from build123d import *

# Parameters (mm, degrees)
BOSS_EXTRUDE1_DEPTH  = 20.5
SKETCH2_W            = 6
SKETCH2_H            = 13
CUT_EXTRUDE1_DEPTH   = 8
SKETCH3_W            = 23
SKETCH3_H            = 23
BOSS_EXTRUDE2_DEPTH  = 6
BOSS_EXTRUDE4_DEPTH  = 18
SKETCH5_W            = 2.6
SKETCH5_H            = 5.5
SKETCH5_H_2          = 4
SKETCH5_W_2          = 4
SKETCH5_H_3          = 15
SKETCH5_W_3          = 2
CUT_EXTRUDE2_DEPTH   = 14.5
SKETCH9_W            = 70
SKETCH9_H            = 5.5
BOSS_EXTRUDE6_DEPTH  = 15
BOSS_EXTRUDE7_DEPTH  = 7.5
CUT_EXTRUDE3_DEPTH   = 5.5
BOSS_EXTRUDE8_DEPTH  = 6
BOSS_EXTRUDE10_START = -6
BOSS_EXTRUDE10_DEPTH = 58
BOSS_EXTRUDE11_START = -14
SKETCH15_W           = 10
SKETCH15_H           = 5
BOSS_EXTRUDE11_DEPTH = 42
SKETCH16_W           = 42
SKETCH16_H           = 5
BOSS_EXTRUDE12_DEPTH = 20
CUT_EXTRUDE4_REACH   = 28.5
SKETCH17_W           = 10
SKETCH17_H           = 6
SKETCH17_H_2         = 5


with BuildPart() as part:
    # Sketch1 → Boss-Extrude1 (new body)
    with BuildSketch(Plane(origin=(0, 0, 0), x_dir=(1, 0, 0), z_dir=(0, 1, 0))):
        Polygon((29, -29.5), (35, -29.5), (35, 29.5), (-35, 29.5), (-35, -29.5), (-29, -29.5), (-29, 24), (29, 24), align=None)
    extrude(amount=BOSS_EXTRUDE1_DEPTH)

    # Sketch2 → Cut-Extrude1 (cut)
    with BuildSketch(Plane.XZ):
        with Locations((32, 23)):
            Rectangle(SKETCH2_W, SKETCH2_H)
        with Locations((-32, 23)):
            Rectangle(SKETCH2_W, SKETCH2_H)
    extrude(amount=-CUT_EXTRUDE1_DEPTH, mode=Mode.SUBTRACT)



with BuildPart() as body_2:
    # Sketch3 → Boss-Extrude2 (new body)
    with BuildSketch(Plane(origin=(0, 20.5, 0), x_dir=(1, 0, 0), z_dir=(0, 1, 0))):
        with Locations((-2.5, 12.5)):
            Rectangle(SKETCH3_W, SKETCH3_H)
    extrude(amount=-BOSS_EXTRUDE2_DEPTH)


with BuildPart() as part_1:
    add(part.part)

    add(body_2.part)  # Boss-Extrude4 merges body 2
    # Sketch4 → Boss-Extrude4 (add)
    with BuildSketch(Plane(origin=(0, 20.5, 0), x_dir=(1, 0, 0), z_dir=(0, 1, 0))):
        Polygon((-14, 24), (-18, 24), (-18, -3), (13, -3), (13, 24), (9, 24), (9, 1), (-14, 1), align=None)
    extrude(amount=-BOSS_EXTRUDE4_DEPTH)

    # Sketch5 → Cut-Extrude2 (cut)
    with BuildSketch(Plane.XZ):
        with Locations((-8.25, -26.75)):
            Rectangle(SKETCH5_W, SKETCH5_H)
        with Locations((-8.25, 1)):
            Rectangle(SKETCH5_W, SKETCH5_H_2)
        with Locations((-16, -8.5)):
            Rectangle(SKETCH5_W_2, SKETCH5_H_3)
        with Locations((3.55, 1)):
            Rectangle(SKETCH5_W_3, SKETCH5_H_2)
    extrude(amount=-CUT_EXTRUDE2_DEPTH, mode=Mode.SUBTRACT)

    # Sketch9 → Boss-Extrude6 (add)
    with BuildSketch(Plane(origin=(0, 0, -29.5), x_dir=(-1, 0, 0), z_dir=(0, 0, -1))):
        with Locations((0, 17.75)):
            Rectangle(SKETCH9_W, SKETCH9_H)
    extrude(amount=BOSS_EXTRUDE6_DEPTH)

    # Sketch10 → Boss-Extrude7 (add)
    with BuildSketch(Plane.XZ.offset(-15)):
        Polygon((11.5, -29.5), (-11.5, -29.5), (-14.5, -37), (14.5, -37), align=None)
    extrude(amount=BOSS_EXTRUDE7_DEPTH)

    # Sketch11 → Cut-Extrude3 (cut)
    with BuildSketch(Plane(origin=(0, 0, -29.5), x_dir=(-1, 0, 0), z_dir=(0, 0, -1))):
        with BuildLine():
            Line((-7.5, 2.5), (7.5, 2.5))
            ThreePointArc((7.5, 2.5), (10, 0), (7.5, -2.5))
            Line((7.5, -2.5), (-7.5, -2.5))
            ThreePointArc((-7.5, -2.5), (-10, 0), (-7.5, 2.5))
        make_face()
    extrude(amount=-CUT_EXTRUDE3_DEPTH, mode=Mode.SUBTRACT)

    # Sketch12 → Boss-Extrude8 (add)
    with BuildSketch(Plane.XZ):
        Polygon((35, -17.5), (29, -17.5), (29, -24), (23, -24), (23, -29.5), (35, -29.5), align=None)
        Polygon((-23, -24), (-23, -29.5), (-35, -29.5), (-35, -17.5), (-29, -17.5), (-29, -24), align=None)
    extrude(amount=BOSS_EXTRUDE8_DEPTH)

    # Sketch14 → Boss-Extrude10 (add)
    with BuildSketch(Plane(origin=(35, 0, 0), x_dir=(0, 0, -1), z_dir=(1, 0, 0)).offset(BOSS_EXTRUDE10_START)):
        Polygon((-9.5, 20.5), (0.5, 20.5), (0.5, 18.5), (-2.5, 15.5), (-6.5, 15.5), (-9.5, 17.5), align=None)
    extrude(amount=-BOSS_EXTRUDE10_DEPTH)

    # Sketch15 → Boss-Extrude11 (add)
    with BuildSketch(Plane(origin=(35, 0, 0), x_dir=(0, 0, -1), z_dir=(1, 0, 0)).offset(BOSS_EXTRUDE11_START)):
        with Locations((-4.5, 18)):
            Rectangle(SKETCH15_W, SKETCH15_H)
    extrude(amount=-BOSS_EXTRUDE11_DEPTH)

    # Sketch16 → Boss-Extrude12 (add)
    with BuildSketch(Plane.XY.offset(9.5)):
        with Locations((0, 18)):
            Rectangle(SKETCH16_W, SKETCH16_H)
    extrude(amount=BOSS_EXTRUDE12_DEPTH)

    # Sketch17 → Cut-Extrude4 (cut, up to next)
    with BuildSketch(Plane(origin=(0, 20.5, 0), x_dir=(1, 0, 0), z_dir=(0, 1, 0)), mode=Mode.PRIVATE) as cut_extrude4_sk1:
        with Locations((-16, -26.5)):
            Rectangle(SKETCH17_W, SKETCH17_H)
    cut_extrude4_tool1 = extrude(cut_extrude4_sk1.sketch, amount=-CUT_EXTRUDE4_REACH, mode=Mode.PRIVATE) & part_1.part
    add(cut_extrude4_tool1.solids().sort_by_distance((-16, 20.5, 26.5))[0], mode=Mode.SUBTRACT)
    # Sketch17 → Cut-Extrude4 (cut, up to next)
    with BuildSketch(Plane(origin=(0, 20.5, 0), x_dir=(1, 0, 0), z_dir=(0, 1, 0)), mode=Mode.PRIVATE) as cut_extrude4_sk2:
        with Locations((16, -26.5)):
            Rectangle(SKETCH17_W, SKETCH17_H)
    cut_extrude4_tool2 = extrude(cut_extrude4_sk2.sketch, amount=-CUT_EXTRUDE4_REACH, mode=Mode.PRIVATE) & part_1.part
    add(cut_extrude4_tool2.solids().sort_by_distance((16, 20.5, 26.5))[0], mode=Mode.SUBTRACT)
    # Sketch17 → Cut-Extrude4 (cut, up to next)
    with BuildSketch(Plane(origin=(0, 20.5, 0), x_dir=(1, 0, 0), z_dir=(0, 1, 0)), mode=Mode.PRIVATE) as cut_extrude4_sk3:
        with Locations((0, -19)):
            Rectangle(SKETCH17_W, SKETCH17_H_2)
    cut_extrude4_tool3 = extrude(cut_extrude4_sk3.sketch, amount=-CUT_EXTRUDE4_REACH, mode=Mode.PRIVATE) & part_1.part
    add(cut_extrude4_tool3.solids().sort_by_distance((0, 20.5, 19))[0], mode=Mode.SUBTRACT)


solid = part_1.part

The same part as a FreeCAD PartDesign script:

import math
import FreeCAD as App
import Part
import Sketcher
Q = App.Units.Quantity

doc = App.newDocument("Part")
body = doc.addObject("PartDesign::Body", "Body")

# Sketch on XZ plane
sketch1 = body.newObject("Sketcher::SketchObject", "Sketch")
sketch1.AttachmentSupport = (doc.getObject("XZ_Plane"), [""])
sketch1.MapMode = "FlatFace"
sketch1.addGeometry([
    Part.LineSegment(App.Vector(29, 30, 0), App.Vector(35, 30, 0)),  # 0
    Part.LineSegment(App.Vector(35, 30, 0), App.Vector(35, -30, 0)),  # 1
    Part.LineSegment(App.Vector(35, -30, 0), App.Vector(-35, -30, 0)),  # 2
    Part.LineSegment(App.Vector(-35, -30, 0), App.Vector(-35, 30, 0)),  # 3
    Part.LineSegment(App.Vector(-35, 30, 0), App.Vector(-29, 30, 0)),  # 4
    Part.LineSegment(App.Vector(-29, 30, 0), App.Vector(-29, -24, 0)),  # 5
    Part.LineSegment(App.Vector(-29, -24, 0), App.Vector(29, -24, 0)),  # 6
    Part.LineSegment(App.Vector(29, -24, 0), App.Vector(29, 30, 0)),  # 7
], False)
sketch1.addConstraint([
    Sketcher.Constraint("Coincident", 0, 2, 1, 1),
    Sketcher.Constraint("Coincident", 1, 2, 2, 1),
    Sketcher.Constraint("Coincident", 2, 2, 3, 1),
    Sketcher.Constraint("Coincident", 3, 2, 4, 1),
    Sketcher.Constraint("Coincident", 4, 2, 5, 1),
    Sketcher.Constraint("Coincident", 5, 2, 6, 1),
    Sketcher.Constraint("Coincident", 6, 2, 7, 1),
    Sketcher.Constraint("Coincident", 7, 2, 0, 1),
    Sketcher.Constraint("Horizontal", 0),
    Sketcher.Constraint("Vertical", 1),
    Sketcher.Constraint("Horizontal", 2),
    Sketcher.Constraint("Vertical", 3),
    Sketcher.Constraint("Horizontal", 4),
    Sketcher.Constraint("Vertical", 5),
    Sketcher.Constraint("Horizontal", 6),
    Sketcher.Constraint("Vertical", 7),
    Sketcher.Constraint("Symmetric", 0, 2, 2, 2, -1, 1),
    Sketcher.Constraint("Symmetric", 4, 2, 7, 2, -2),
    Sketcher.Constraint("DistanceX", 0, 1, 0, 2, 6.0),
    Sketcher.Constraint("DistanceX", 2, 2, 2, 1, 70.0),
    Sketcher.Constraint("DistanceY", 1, 2, 1, 1, 59.0),
    Sketcher.Constraint("DistanceY", 5, 2, 5, 1, 53.5),
])
pad1 = body.newObject("PartDesign::Pad", "Pad")
pad1.Profile = sketch1
pad1.Length = 20.5
pad1.Reversed = True

# Sketch on XZ plane
sketch2 = body.newObject("Sketcher::SketchObject", "Sketch001")
sketch2.AttachmentSupport = (doc.getObject("XZ_Plane"), [""])
sketch2.MapMode = "FlatFace"
sketch2.addGeometry([
    Part.LineSegment(App.Vector(29, 30, 0), App.Vector(29, 16, 0)),  # 0
    Part.LineSegment(App.Vector(29, 16, 0), App.Vector(35, 16, 0)),  # 1
    Part.LineSegment(App.Vector(35, 16, 0), App.Vector(35, 30, 0)),  # 2
    Part.LineSegment(App.Vector(35, 30, 0), App.Vector(29, 30, 0)),  # 3
    Part.LineSegment(App.Vector(-35, 30, 0), App.Vector(-35, 16, 0)),  # 4
    Part.LineSegment(App.Vector(-35, 16, 0), App.Vector(-29, 16, 0)),  # 5
    Part.LineSegment(App.Vector(-29, 16, 0), App.Vector(-29, 30, 0)),  # 6
    Part.LineSegment(App.Vector(-29, 30, 0), App.Vector(-35, 30, 0)),  # 7
], False)
sketch2.addConstraint([
    Sketcher.Constraint("Coincident", 0, 2, 1, 1),
    Sketcher.Constraint("Coincident", 1, 2, 2, 1),
    Sketcher.Constraint("Coincident", 2, 2, 3, 1),
    Sketcher.Constraint("Coincident", 3, 2, 0, 1),
    Sketcher.Constraint("Coincident", 4, 2, 5, 1),
    Sketcher.Constraint("Coincident", 5, 2, 6, 1),
    Sketcher.Constraint("Coincident", 6, 2, 7, 1),
    Sketcher.Constraint("Coincident", 7, 2, 4, 1),
    Sketcher.Constraint("Vertical", 0),
    Sketcher.Constraint("Horizontal", 1),
    Sketcher.Constraint("Vertical", 2),
    Sketcher.Constraint("Horizontal", 3),
    Sketcher.Constraint("Vertical", 4),
    Sketcher.Constraint("Horizontal", 5),
    Sketcher.Constraint("Vertical", 6),
    Sketcher.Constraint("Horizontal", 7),
    Sketcher.Constraint("Symmetric", 1, 2, 4, 2, -2),
    Sketcher.Constraint("Symmetric", 3, 2, 6, 2, -2),
    Sketcher.Constraint("DistanceX", 1, 1, 1, 2, 6.0),
    Sketcher.Constraint("DistanceY", 0, 2, 0, 1, 13.0),
    Sketcher.Constraint("DistanceX", -1, 1, 0, 2, 29.0),
    Sketcher.Constraint("DistanceY", -1, 1, 0, 2, 16.5),
])
pocket1 = body.newObject("PartDesign::Pocket", "Pocket")
pocket1.Profile = sketch2
pocket1.Length = 8
body2 = doc.addObject("PartDesign::Body", "Body001")

# Sketch on XZ plane
sketch3 = body2.newObject("Sketcher::SketchObject", "Sketch002")
sketch3.AttachmentSupport = (doc.getObject("XZ_Plane001"), [""])
sketch3.MapMode = "FlatFace"
sketch3.AttachmentOffset = App.Placement(App.Vector(0, 0, -20.5), App.Rotation())
sketch3.addGeometry([
    Part.LineSegment(App.Vector(-14, -24, 0), App.Vector(-14, -1, 0)),
    Part.LineSegment(App.Vector(-14, -1, 0), App.Vector(9, -1, 0)),
    Part.LineSegment(App.Vector(9, -1, 0), App.Vector(9, -24, 0)),
    Part.LineSegment(App.Vector(9, -24, 0), App.Vector(-14, -24, 0)),
], False)
sketch3.addConstraint([
    Sketcher.Constraint("Coincident", 0, 2, 1, 1),
    Sketcher.Constraint("Coincident", 1, 2, 2, 1),
    Sketcher.Constraint("Coincident", 2, 2, 3, 1),
    Sketcher.Constraint("Coincident", 3, 2, 0, 1),
    Sketcher.Constraint("Vertical", 0),
    Sketcher.Constraint("Horizontal", 1),
    Sketcher.Constraint("Vertical", 2),
    Sketcher.Constraint("Horizontal", 3),
    Sketcher.Constraint("Equal", 3, 0),
    Sketcher.Constraint("DistanceX", 1, 1, 1, 2, 23.0),
    Sketcher.Constraint("DistanceX", 0, 2, -1, 1, 14.0),
    Sketcher.Constraint("DistanceY", 0, 2, -1, 1, 1.0),
])
pad2 = body2.newObject("PartDesign::Pad", "Pad001")
pad2.Profile = sketch3
pad2.Length = 6
doc.recompute()

boolean = body.newObject("PartDesign::Boolean", "Boolean")
boolean.Type = "Fuse"
boolean.addObjects([body2])

# Sketch on XZ plane
sketch4 = body.newObject("Sketcher::SketchObject", "Sketch003")
sketch4.AttachmentSupport = (doc.getObject("XZ_Plane"), [""])
sketch4.MapMode = "FlatFace"
sketch4.AttachmentOffset = App.Placement(App.Vector(0, 0, -20.5), App.Rotation())
sketch4.addGeometry([
    Part.LineSegment(App.Vector(-14, -24, 0), App.Vector(-18, -24, 0)),  # 0
    Part.LineSegment(App.Vector(-18, -24, 0), App.Vector(-18, 3, 0)),  # 1
    Part.LineSegment(App.Vector(-18, 3, 0), App.Vector(13, 3, 0)),  # 2
    Part.LineSegment(App.Vector(13, 3, 0), App.Vector(13, -24, 0)),  # 3
    Part.LineSegment(App.Vector(13, -24, 0), App.Vector(9, -24, 0)),  # 4
    Part.LineSegment(App.Vector(9, -24, 0), App.Vector(9, -1, 0)),  # 5
    Part.LineSegment(App.Vector(9, -1, 0), App.Vector(-14, -1, 0)),  # 6
    Part.LineSegment(App.Vector(-14, -1, 0), App.Vector(-14, -24, 0)),  # 7
], False)
sketch4.addConstraint([
    Sketcher.Constraint("Coincident", 0, 2, 1, 1),
    Sketcher.Constraint("Coincident", 1, 2, 2, 1),
    Sketcher.Constraint("Coincident", 2, 2, 3, 1),
    Sketcher.Constraint("Coincident", 3, 2, 4, 1),
    Sketcher.Constraint("Coincident", 4, 2, 5, 1),
    Sketcher.Constraint("Coincident", 5, 2, 6, 1),
    Sketcher.Constraint("Coincident", 6, 2, 7, 1),
    Sketcher.Constraint("Coincident", 7, 2, 0, 1),
    Sketcher.Constraint("Horizontal", 0),
    Sketcher.Constraint("Vertical", 1),
    Sketcher.Constraint("Horizontal", 2),
    Sketcher.Constraint("Vertical", 3),
    Sketcher.Constraint("Horizontal", 4),
    Sketcher.Constraint("Vertical", 5),
    Sketcher.Constraint("Horizontal", 6),
    Sketcher.Constraint("Vertical", 7),
    Sketcher.Constraint("Horizontal", 0, 2, 3, 2),
    Sketcher.Constraint("Equal", 0, 4),
    Sketcher.Constraint("Equal", 6, 5),
    Sketcher.Constraint("DistanceX", 0, 2, 0, 1, 4.0),
    Sketcher.Constraint("DistanceX", 2, 1, 2, 2, 31.0),
    Sketcher.Constraint("DistanceY", 1, 1, 1, 2, 27.0),
    Sketcher.Constraint("DistanceX", 0, 2, -1, 1, 18.0),
    Sketcher.Constraint("DistanceY", 0, 2, -1, 1, 24.0),
])
pad3 = body.newObject("PartDesign::Pad", "Pad002")
pad3.Profile = sketch4
pad3.Length = 18

# Sketch on XZ plane
sketch5 = body.newObject("Sketcher::SketchObject", "Sketch004")
sketch5.AttachmentSupport = (doc.getObject("XZ_Plane"), [""])
sketch5.MapMode = "FlatFace"
sketch5.addGeometry([
    Part.LineSegment(App.Vector(-9.6, -24, 0), App.Vector(-9.6, -29.5, 0)),  # 0
    Part.LineSegment(App.Vector(-9.6, -29.5, 0), App.Vector(-7, -29.5, 0)),  # 1
    Part.LineSegment(App.Vector(-7, -29.5, 0), App.Vector(-7, -24, 0)),  # 2
    Part.LineSegment(App.Vector(-7, -24, 0), App.Vector(-9.6, -24, 0)),  # 3
    Part.LineSegment(App.Vector(-9.6, 3, 0), App.Vector(-9.6, -1, 0)),  # 4
    Part.LineSegment(App.Vector(-9.6, -1, 0), App.Vector(-7, -1, 0)),  # 5
    Part.LineSegment(App.Vector(-7, -1, 0), App.Vector(-7, 3, 0)),  # 6
    Part.LineSegment(App.Vector(-7, 3, 0), App.Vector(-9.6, 3, 0)),  # 7
    Part.LineSegment(App.Vector(-18, -1, 0), App.Vector(-18, -16, 0)),  # 8
    Part.LineSegment(App.Vector(-18, -16, 0), App.Vector(-14, -16, 0)),  # 9
    Part.LineSegment(App.Vector(-14, -16, 0), App.Vector(-14, -1, 0)),  # 10
    Part.LineSegment(App.Vector(-14, -1, 0), App.Vector(-18, -1, 0)),  # 11
    Part.LineSegment(App.Vector(2.5, 3, 0), App.Vector(2.5, -1, 0)),  # 12
    Part.LineSegment(App.Vector(2.5, -1, 0), App.Vector(4.5, -1, 0)),  # 13
    Part.LineSegment(App.Vector(4.5, -1, 0), App.Vector(4.5, 3, 0)),  # 14
    Part.LineSegment(App.Vector(4.5, 3, 0), App.Vector(2.5, 3, 0)),  # 15
], False)
sketch5.addConstraint([
    Sketcher.Constraint("Coincident", 0, 2, 1, 1),
    Sketcher.Constraint("Coincident", 1, 2, 2, 1),
    Sketcher.Constraint("Coincident", 2, 2, 3, 1),
    Sketcher.Constraint("Coincident", 3, 2, 0, 1),
    Sketcher.Constraint("Coincident", 4, 2, 5, 1),
    Sketcher.Constraint("Coincident", 5, 2, 6, 1),
    Sketcher.Constraint("Coincident", 6, 2, 7, 1),
    Sketcher.Constraint("Coincident", 7, 2, 4, 1),
    Sketcher.Constraint("Coincident", 8, 2, 9, 1),
    Sketcher.Constraint("Coincident", 9, 2, 10, 1),
    Sketcher.Constraint("Coincident", 10, 2, 11, 1),
    Sketcher.Constraint("Coincident", 11, 2, 8, 1),
    Sketcher.Constraint("Coincident", 12, 2, 13, 1),
    Sketcher.Constraint("Coincident", 13, 2, 14, 1),
    Sketcher.Constraint("Coincident", 14, 2, 15, 1),
    Sketcher.Constraint("Coincident", 15, 2, 12, 1),
    Sketcher.Constraint("Vertical", 0),
    Sketcher.Constraint("Horizontal", 1),
    Sketcher.Constraint("Vertical", 2),
    Sketcher.Constraint("Horizontal", 3),
    Sketcher.Constraint("Vertical", 4),
    Sketcher.Constraint("Horizontal", 5),
    Sketcher.Constraint("Vertical", 6),
    Sketcher.Constraint("Horizontal", 7),
    Sketcher.Constraint("Vertical", 8),
    Sketcher.Constraint("Horizontal", 9),
    Sketcher.Constraint("Vertical", 10),
    Sketcher.Constraint("Horizontal", 11),
    Sketcher.Constraint("Vertical", 12),
    Sketcher.Constraint("Horizontal", 13),
    Sketcher.Constraint("Vertical", 14),
    Sketcher.Constraint("Horizontal", 15),
    Sketcher.Constraint("Horizontal", 5, 2, 10, 2),
    Sketcher.Constraint("Horizontal", 11, 2, 12, 2),
    Sketcher.Constraint("Horizontal", 7, 2, 14, 2),
    Sketcher.Constraint("Vertical", 3, 2, 4, 2),
    Sketcher.Constraint("Vertical", 2, 2, 5, 2),
    Sketcher.Constraint("Equal", 11, 4),
    Sketcher.Constraint("DistanceX", 9, 1, 9, 2, 4.0),
    Sketcher.Constraint("DistanceX", 13, 1, 13, 2, 2.0),
    Sketcher.Constraint("DistanceY", 8, 2, 8, 1, 15.0),
    Sketcher.Constraint("DistanceX", 1, 1, 1, 2, 2.6),
    Sketcher.Constraint("DistanceY", 0, 2, 0, 1, 5.5),
    Sketcher.Constraint("DistanceY", 2, 2, -1, 1, 24.0),
    Sketcher.Constraint("DistanceY", 4, 2, -1, 1, 1.0),
    Sketcher.Constraint("DistanceX", 8, 2, -1, 1, 18.0),
    Sketcher.Constraint("DistanceX", 5, 2, 12, 2, 9.5),
    Sketcher.Constraint("DistanceX", 0, 2, -1, 1, 9.55),
])
pocket2 = body.newObject("PartDesign::Pocket", "Pocket001")
pocket2.Profile = sketch5
pocket2.Length = 14.5

# Sketch on XY plane
sketch6 = body.newObject("Sketcher::SketchObject", "Sketch005")
sketch6.AttachmentSupport = (doc.getObject("XY_Plane"), [""])
sketch6.MapMode = "FlatFace"
sketch6.AttachmentOffset = App.Placement(App.Vector(0, 0, -29.5), App.Rotation())
sketch6.addGeometry([
    Part.LineSegment(App.Vector(35, 20, 0), App.Vector(35, 15, 0)),
    Part.LineSegment(App.Vector(35, 15, 0), App.Vector(-35, 15, 0)),
    Part.LineSegment(App.Vector(-35, 15, 0), App.Vector(-35, 20, 0)),
    Part.LineSegment(App.Vector(-35, 20, 0), App.Vector(35, 20, 0)),
], False)
sketch6.addConstraint([
    Sketcher.Constraint("Coincident", 0, 2, 1, 1),
    Sketcher.Constraint("Coincident", 1, 2, 2, 1),
    Sketcher.Constraint("Coincident", 2, 2, 3, 1),
    Sketcher.Constraint("Coincident", 3, 2, 0, 1),
    Sketcher.Constraint("Vertical", 0),
    Sketcher.Constraint("Horizontal", 1),
    Sketcher.Constraint("Vertical", 2),
    Sketcher.Constraint("Horizontal", 3),
    Sketcher.Constraint("DistanceX", 1, 2, 1, 1, 70.0),
    Sketcher.Constraint("DistanceY", 0, 2, 0, 1, 5.5),
    Sketcher.Constraint("DistanceX", -1, 1, 0, 2, 35.0),
    Sketcher.Constraint("DistanceY", -1, 1, 0, 2, 15.0),
])
pad4 = body.newObject("PartDesign::Pad", "Pad003")
pad4.Profile = sketch6
pad4.Length = 15
pad4.Reversed = True

# Sketch on XZ plane
sketch7 = body.newObject("Sketcher::SketchObject", "Sketch006")
sketch7.AttachmentSupport = (doc.getObject("XZ_Plane"), [""])
sketch7.MapMode = "FlatFace"
sketch7.AttachmentOffset = App.Placement(App.Vector(0, 0, -15), App.Rotation())
sketch7.addGeometry([
    Part.LineSegment(App.Vector(12, -30, 0), App.Vector(-12, -30, 0)),
    Part.LineSegment(App.Vector(-12, -30, 0), App.Vector(-14, -37, 0)),
    Part.LineSegment(App.Vector(-14, -37, 0), App.Vector(14, -37, 0)),
    Part.LineSegment(App.Vector(14, -37, 0), App.Vector(12, -30, 0)),
], False)
sketch7.addConstraint([
    Sketcher.Constraint("Coincident", 0, 2, 1, 1),
    Sketcher.Constraint("Coincident", 1, 2, 2, 1),
    Sketcher.Constraint("Coincident", 2, 2, 3, 1),
    Sketcher.Constraint("Coincident", 3, 2, 0, 1),
    Sketcher.Constraint("Horizontal", 0),
    Sketcher.Constraint("Horizontal", 2),
    Sketcher.Constraint("Equal", 1, 3),
    Sketcher.Constraint("DistanceX", 0, 2, 0, 1, 23.0),
    Sketcher.Constraint("DistanceX", 2, 1, 2, 2, 29.0),
    Sketcher.Constraint("DistanceY", 1, 2, -1, 1, 37.0),
    Sketcher.Constraint("DistanceX", 0, 2, -1, 1, 11.5),
    Sketcher.Constraint("DistanceY", 0, 2, -1, 1, 29.5),
])
pad5 = body.newObject("PartDesign::Pad", "Pad004")
pad5.Profile = sketch7
pad5.Length = 7.5

# Sketch on XY plane
sketch8 = body.newObject("Sketcher::SketchObject", "Sketch007")
sketch8.AttachmentSupport = (doc.getObject("XY_Plane"), [""])
sketch8.MapMode = "FlatFace"
sketch8.AttachmentOffset = App.Placement(App.Vector(0, 0, -29.5), App.Rotation())
sketch8.addGeometry([
    Part.LineSegment(App.Vector(-7.5, 2.5, 0), App.Vector(7.5, 2.5, 0)),
    Part.ArcOfCircle(Part.Circle(App.Vector(7.5, 0, 0), App.Vector(0, 0, 1), 2.5), math.radians(-90), math.radians(90)),
    Part.LineSegment(App.Vector(7.5, -2.5, 0), App.Vector(-7.5, -2.5, 0)),
    Part.ArcOfCircle(Part.Circle(App.Vector(-7.5, 0, 0), App.Vector(0, 0, 1), 2.5), math.radians(90), math.radians(270)),
], False)
sketch8.addConstraint([
    Sketcher.Constraint("Tangent", 0, 2, 1, 2),
    Sketcher.Constraint("Tangent", 1, 1, 2, 1),
    Sketcher.Constraint("Tangent", 2, 2, 3, 2),
    Sketcher.Constraint("Tangent", 3, 1, 0, 1),
    Sketcher.Constraint("Horizontal", 0),
    Sketcher.Constraint("Horizontal", 2),
    Sketcher.Constraint("Symmetric", 1, 3, 3, 3, -1, 1),
    Sketcher.Constraint("Radius", 1, 2.5),
    Sketcher.Constraint("DistanceX", 0, 1, 0, 2, 15.0),
])
pocket3 = body.newObject("PartDesign::Pocket", "Pocket002")
pocket3.Profile = sketch8
pocket3.Length = 5.5
pocket3.Reversed = True

# Sketch on XZ plane
sketch9 = body.newObject("Sketcher::SketchObject", "Sketch008")
sketch9.AttachmentSupport = (doc.getObject("XZ_Plane"), [""])
sketch9.MapMode = "FlatFace"
sketch9.addGeometry([
    Part.LineSegment(App.Vector(35, -18, 0), App.Vector(29, -18, 0)),  # 0
    Part.LineSegment(App.Vector(29, -18, 0), App.Vector(29, -24, 0)),  # 1
    Part.LineSegment(App.Vector(29, -24, 0), App.Vector(23, -24, 0)),  # 2
    Part.LineSegment(App.Vector(23, -24, 0), App.Vector(23, -30, 0)),  # 3
    Part.LineSegment(App.Vector(23, -30, 0), App.Vector(35, -30, 0)),  # 4
    Part.LineSegment(App.Vector(35, -30, 0), App.Vector(35, -18, 0)),  # 5
    Part.LineSegment(App.Vector(-23, -30, 0), App.Vector(-23, -24, 0)),  # 6
    Part.LineSegment(App.Vector(-23, -24, 0), App.Vector(-29, -24, 0)),  # 7
    Part.LineSegment(App.Vector(-29, -24, 0), App.Vector(-29, -18, 0)),  # 8
    Part.LineSegment(App.Vector(-29, -18, 0), App.Vector(-35, -18, 0)),  # 9
    Part.LineSegment(App.Vector(-35, -18, 0), App.Vector(-35, -30, 0)),  # 10
    Part.LineSegment(App.Vector(-35, -30, 0), App.Vector(-23, -30, 0)),  # 11
], False)
sketch9.addConstraint([
    Sketcher.Constraint("Coincident", 0, 2, 1, 1),
    Sketcher.Constraint("Coincident", 1, 2, 2, 1),
    Sketcher.Constraint("Coincident", 2, 2, 3, 1),
    Sketcher.Constraint("Coincident", 3, 2, 4, 1),
    Sketcher.Constraint("Coincident", 4, 2, 5, 1),
    Sketcher.Constraint("Coincident", 5, 2, 0, 1),
    Sketcher.Constraint("Coincident", 6, 2, 7, 1),
    Sketcher.Constraint("Coincident", 7, 2, 8, 1),
    Sketcher.Constraint("Coincident", 8, 2, 9, 1),
    Sketcher.Constraint("Coincident", 9, 2, 10, 1),
    Sketcher.Constraint("Coincident", 10, 2, 11, 1),
    Sketcher.Constraint("Coincident", 11, 2, 6, 1),
    Sketcher.Constraint("Horizontal", 0),
    Sketcher.Constraint("Vertical", 1),
    Sketcher.Constraint("Horizontal", 2),
    Sketcher.Constraint("Vertical", 3),
    Sketcher.Constraint("Horizontal", 4),
    Sketcher.Constraint("Vertical", 5),
    Sketcher.Constraint("Vertical", 6),
    Sketcher.Constraint("Horizontal", 7),
    Sketcher.Constraint("Vertical", 8),
    Sketcher.Constraint("Horizontal", 9),
    Sketcher.Constraint("Vertical", 10),
    Sketcher.Constraint("Horizontal", 11),
    Sketcher.Constraint("Symmetric", 2, 2, 6, 2, -2),
    Sketcher.Constraint("Symmetric", 0, 2, 8, 2, -2),
    Sketcher.Constraint("Symmetric", 4, 2, 10, 2, -2),
    Sketcher.Constraint("Equal", 0, 2),
    Sketcher.Constraint("Equal", 11, 5),
    Sketcher.Constraint("DistanceX", 0, 2, 0, 1, 6.0),
    Sketcher.Constraint("DistanceY", 1, 2, 1, 1, 6.5),
    Sketcher.Constraint("DistanceX", -1, 1, 0, 2, 29.0),
    Sketcher.Constraint("DistanceY", 1, 2, -1, 1, 24.0),
])
pad6 = body.newObject("PartDesign::Pad", "Pad005")
pad6.Profile = sketch9
pad6.Length = 6

# Sketch on YZ plane
sketch10 = body.newObject("Sketcher::SketchObject", "Sketch009")
sketch10.AttachmentSupport = (doc.getObject("YZ_Plane"), [""])
sketch10.MapMode = "FlatFace"
sketch10.AttachmentOffset = App.Placement(App.Vector(0, 0, 29), App.Rotation())
sketch10.addGeometry([
    Part.LineSegment(App.Vector(20.5, -0.5, 0), App.Vector(20.5, 9.5, 0)),  # 0
    Part.LineSegment(App.Vector(20.5, 9.5, 0), App.Vector(17.5, 9.5, 0)),  # 1
    Part.LineSegment(App.Vector(17.5, 9.5, 0), App.Vector(15.5, 6.5, 0)),  # 2
    Part.LineSegment(App.Vector(15.5, 6.5, 0), App.Vector(15.5, 2.5, 0)),  # 3
    Part.LineSegment(App.Vector(15.5, 2.5, 0), App.Vector(18.5, -0.5, 0)),  # 4
    Part.LineSegment(App.Vector(18.5, -0.5, 0), App.Vector(20.5, -0.5, 0)),  # 5
], False)
sketch10.addConstraint([
    Sketcher.Constraint("Coincident", 0, 2, 1, 1),
    Sketcher.Constraint("Coincident", 1, 2, 2, 1),
    Sketcher.Constraint("Coincident", 2, 2, 3, 1),
    Sketcher.Constraint("Coincident", 3, 2, 4, 1),
    Sketcher.Constraint("Coincident", 4, 2, 5, 1),
    Sketcher.Constraint("Coincident", 5, 2, 0, 1),
    Sketcher.Constraint("Vertical", 0),
    Sketcher.Constraint("Horizontal", 1),
    Sketcher.Constraint("Vertical", 3),
    Sketcher.Constraint("Horizontal", 5),
    Sketcher.Constraint("DistanceX", 1, 2, 1, 1, 3.0),
    Sketcher.Constraint("DistanceX", 5, 1, 5, 2, 2.0),
    Sketcher.Constraint("DistanceY", 0, 1, 0, 2, 10.0),
    Sketcher.Constraint("DistanceY", 3, 2, 3, 1, 4.0),
    Sketcher.Constraint("Angle", 4, Q("-45 deg")),
    Sketcher.Constraint("DistanceX", 2, 2, 1, 2, 2.0),
    Sketcher.Constraint("DistanceX", -1, 1, 0, 2, 20.5),
    Sketcher.Constraint("DistanceY", -1, 1, 0, 2, 9.5),
])
pad7 = body.newObject("PartDesign::Pad", "Pad006")
pad7.Profile = sketch10
pad7.Length = 58
pad7.Reversed = True

# Sketch on YZ plane
sketch11 = body.newObject("Sketcher::SketchObject", "Sketch010")
sketch11.AttachmentSupport = (doc.getObject("YZ_Plane"), [""])
sketch11.MapMode = "FlatFace"
sketch11.AttachmentOffset = App.Placement(App.Vector(0, 0, 21), App.Rotation())
sketch11.addGeometry([
    Part.LineSegment(App.Vector(20, 10, 0), App.Vector(16, 10, 0)),
    Part.LineSegment(App.Vector(16, 10, 0), App.Vector(16, 0, 0)),
    Part.LineSegment(App.Vector(16, 0, 0), App.Vector(20, 0, 0)),
    Part.LineSegment(App.Vector(20, 0, 0), App.Vector(20, 10, 0)),
], False)
sketch11.addConstraint([
    Sketcher.Constraint("Coincident", 0, 2, 1, 1),
    Sketcher.Constraint("Coincident", 1, 2, 2, 1),
    Sketcher.Constraint("Coincident", 2, 2, 3, 1),
    Sketcher.Constraint("Coincident", 3, 2, 0, 1),
    Sketcher.Constraint("Horizontal", 0),
    Sketcher.Constraint("Vertical", 1),
    Sketcher.Constraint("Horizontal", 2),
    Sketcher.Constraint("Vertical", 3),
    Sketcher.Constraint("DistanceX", 0, 2, 0, 1, 5.0),
    Sketcher.Constraint("DistanceY", 1, 2, 1, 1, 10.0),
    Sketcher.Constraint("DistanceX", -1, 1, 0, 2, 15.5),
    Sketcher.Constraint("DistanceY", -1, 1, 0, 2, 9.5),
])
pad8 = body.newObject("PartDesign::Pad", "Pad007")
pad8.Profile = sketch11
pad8.Length = 42
pad8.Reversed = True

# Sketch on XY plane
sketch12 = body.newObject("Sketcher::SketchObject", "Sketch011")
sketch12.AttachmentSupport = (doc.getObject("XY_Plane"), [""])
sketch12.MapMode = "FlatFace"
sketch12.AttachmentOffset = App.Placement(App.Vector(0, 0, 9.5), App.Rotation())
sketch12.addGeometry([
    Part.LineSegment(App.Vector(-21, 20, 0), App.Vector(-21, 16, 0)),
    Part.LineSegment(App.Vector(-21, 16, 0), App.Vector(21, 16, 0)),
    Part.LineSegment(App.Vector(21, 16, 0), App.Vector(21, 20, 0)),
    Part.LineSegment(App.Vector(21, 20, 0), App.Vector(-21, 20, 0)),
], False)
sketch12.addConstraint([
    Sketcher.Constraint("Coincident", 0, 2, 1, 1),
    Sketcher.Constraint("Coincident", 1, 2, 2, 1),
    Sketcher.Constraint("Coincident", 2, 2, 3, 1),
    Sketcher.Constraint("Coincident", 3, 2, 0, 1),
    Sketcher.Constraint("Vertical", 0),
    Sketcher.Constraint("Horizontal", 1),
    Sketcher.Constraint("Vertical", 2),
    Sketcher.Constraint("Horizontal", 3),
    Sketcher.Constraint("DistanceX", 1, 1, 1, 2, 42.0),
    Sketcher.Constraint("DistanceY", 0, 2, 0, 1, 5.0),
    Sketcher.Constraint("DistanceX", 0, 2, -1, 1, 21.0),
    Sketcher.Constraint("DistanceY", -1, 1, 0, 2, 15.5),
])
pad9 = body.newObject("PartDesign::Pad", "Pad008")
pad9.Profile = sketch12
pad9.Length = 20

# Sketch on XZ plane
sketch13 = body.newObject("Sketcher::SketchObject", "Sketch012")
sketch13.AttachmentSupport = (doc.getObject("XZ_Plane"), [""])
sketch13.MapMode = "FlatFace"
sketch13.AttachmentOffset = App.Placement(App.Vector(0, 0, -20.5), App.Rotation())
sketch13.addGeometry([
    Part.LineSegment(App.Vector(-21, 24, 0), App.Vector(-21, 30, 0)),
    Part.LineSegment(App.Vector(-21, 30, 0), App.Vector(-11, 30, 0)),
    Part.LineSegment(App.Vector(-11, 30, 0), App.Vector(-11, 24, 0)),
    Part.LineSegment(App.Vector(-11, 24, 0), App.Vector(-21, 24, 0)),
], False)
sketch13.addConstraint([
    Sketcher.Constraint("Coincident", 0, 2, 1, 1),
    Sketcher.Constraint("Coincident", 1, 2, 2, 1),
    Sketcher.Constraint("Coincident", 2, 2, 3, 1),
    Sketcher.Constraint("Coincident", 3, 2, 0, 1),
    Sketcher.Constraint("Vertical", 0),
    Sketcher.Constraint("Horizontal", 1),
    Sketcher.Constraint("Vertical", 2),
    Sketcher.Constraint("Horizontal", 3),
    Sketcher.Constraint("DistanceX", 1, 1, 1, 2, 10.0),
    Sketcher.Constraint("DistanceY", 0, 1, 0, 2, 6.0),
    Sketcher.Constraint("DistanceX", 0, 2, -1, 1, 21.0),
    Sketcher.Constraint("DistanceY", -1, 1, 0, 2, 29.5),
])
pocket4 = body.newObject("PartDesign::Pocket", "Pocket003")
pocket4.Profile = sketch13
pocket4.Type = "UpToFirst"
pocket4.Reversed = True

# Sketch on XZ plane
sketch14 = body.newObject("Sketcher::SketchObject", "Sketch013")
sketch14.AttachmentSupport = (doc.getObject("XZ_Plane"), [""])
sketch14.MapMode = "FlatFace"
sketch14.AttachmentOffset = App.Placement(App.Vector(0, 0, -20.5), App.Rotation())
sketch14.addGeometry([
    Part.LineSegment(App.Vector(11, 24, 0), App.Vector(11, 30, 0)),
    Part.LineSegment(App.Vector(11, 30, 0), App.Vector(21, 30, 0)),
    Part.LineSegment(App.Vector(21, 30, 0), App.Vector(21, 24, 0)),
    Part.LineSegment(App.Vector(21, 24, 0), App.Vector(11, 24, 0)),
], False)
sketch14.addConstraint([
    Sketcher.Constraint("Coincident", 0, 2, 1, 1),
    Sketcher.Constraint("Coincident", 1, 2, 2, 1),
    Sketcher.Constraint("Coincident", 2, 2, 3, 1),
    Sketcher.Constraint("Coincident", 3, 2, 0, 1),
    Sketcher.Constraint("Vertical", 0),
    Sketcher.Constraint("Horizontal", 1),
    Sketcher.Constraint("Vertical", 2),
    Sketcher.Constraint("Horizontal", 3),
    Sketcher.Constraint("DistanceX", 1, 1, 1, 2, 10.0),
    Sketcher.Constraint("DistanceY", 0, 1, 0, 2, 6.0),
    Sketcher.Constraint("DistanceX", -1, 1, 0, 2, 11.0),
    Sketcher.Constraint("DistanceY", -1, 1, 0, 2, 29.5),
])
pocket5 = body.newObject("PartDesign::Pocket", "Pocket004")
pocket5.Profile = sketch14
pocket5.Type = "UpToFirst"
pocket5.Reversed = True

# Sketch on XZ plane
sketch15 = body.newObject("Sketcher::SketchObject", "Sketch014")
sketch15.AttachmentSupport = (doc.getObject("XZ_Plane"), [""])
sketch15.MapMode = "FlatFace"
sketch15.AttachmentOffset = App.Placement(App.Vector(0, 0, -20.5), App.Rotation())
sketch15.addGeometry([
    Part.LineSegment(App.Vector(-5, 16, 0), App.Vector(-5, 22, 0)),
    Part.LineSegment(App.Vector(-5, 22, 0), App.Vector(5, 22, 0)),
    Part.LineSegment(App.Vector(5, 22, 0), App.Vector(5, 16, 0)),
    Part.LineSegment(App.Vector(5, 16, 0), App.Vector(-5, 16, 0)),
], False)
sketch15.addConstraint([
    Sketcher.Constraint("Coincident", 0, 2, 1, 1),
    Sketcher.Constraint("Coincident", 1, 2, 2, 1),
    Sketcher.Constraint("Coincident", 2, 2, 3, 1),
    Sketcher.Constraint("Coincident", 3, 2, 0, 1),
    Sketcher.Constraint("Vertical", 0),
    Sketcher.Constraint("Horizontal", 1),
    Sketcher.Constraint("Vertical", 2),
    Sketcher.Constraint("Horizontal", 3),
    Sketcher.Constraint("DistanceX", 1, 1, 1, 2, 10.0),
    Sketcher.Constraint("DistanceY", 0, 1, 0, 2, 5.0),
    Sketcher.Constraint("DistanceX", 0, 2, -1, 1, 5.0),
    Sketcher.Constraint("DistanceY", -1, 1, 0, 2, 21.5),
])
pocket6 = body.newObject("PartDesign::Pocket", "Pocket005")
pocket6.Profile = sketch15
pocket6.Type = "UpToFirst"
pocket6.Reversed = True

doc.recompute()
